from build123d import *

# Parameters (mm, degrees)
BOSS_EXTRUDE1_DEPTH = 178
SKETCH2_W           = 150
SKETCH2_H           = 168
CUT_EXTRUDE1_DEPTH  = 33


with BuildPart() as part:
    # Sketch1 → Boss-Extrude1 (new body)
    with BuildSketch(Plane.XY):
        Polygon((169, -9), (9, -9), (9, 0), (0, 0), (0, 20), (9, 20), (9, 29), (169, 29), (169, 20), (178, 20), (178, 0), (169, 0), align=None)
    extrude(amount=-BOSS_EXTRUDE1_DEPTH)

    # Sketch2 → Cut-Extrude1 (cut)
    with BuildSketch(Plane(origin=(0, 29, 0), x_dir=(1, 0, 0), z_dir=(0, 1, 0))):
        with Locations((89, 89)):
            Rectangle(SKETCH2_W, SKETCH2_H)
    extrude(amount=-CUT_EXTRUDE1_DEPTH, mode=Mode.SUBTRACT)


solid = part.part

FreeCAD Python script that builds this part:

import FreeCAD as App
import Part
import Sketcher

V = App.Vector
Q = App.Units.Quantity


def add_polygon(sketch, points):
    """Adds a closed chain of lines whose ends are joined by coincident constraints."""
    first, n = sketch.GeometryCount, len(points)
    for a, b in zip(points, points[1:] + points[:1]):
        sketch.addGeometry(Part.LineSegment(App.Vector(*a, 0), App.Vector(*b, 0)), False)
    for i in range(n):
        sketch.addConstraint(Sketcher.Constraint("Coincident", first + i, 2, first + (i + 1) % n, 1))

doc = App.newDocument("Part")
body = doc.addObject("PartDesign::Body", "Body")

sketch1 = doc.addObject("Sketcher::SketchObject", "Sketch")
body.addObject(sketch1)
sketch1.AttachmentSupport = (doc.XY_Plane, [""])
sketch1.MapMode = "FlatFace"
add_polygon(sketch1, [(9, -9), (169, -9), (169, 0), (178, 0), (178, 20), (169, 20), (169, 29), (9, 29), (9, 20), (0, 20), (0, 0), (9, 0)])
sketch1.addConstraint([
    Sketcher.Constraint("Horizontal", 0),
    Sketcher.Constraint("Vertical", 1),
    Sketcher.Constraint("Horizontal", 2),
    Sketcher.Constraint("Vertical", 3),
    Sketcher.Constraint("Horizontal", 4),
    Sketcher.Constraint("Vertical", 5),
    Sketcher.Constraint("Horizontal", 6),
    Sketcher.Constraint("Vertical", 7),
    Sketcher.Constraint("Horizontal", 8),
    Sketcher.Constraint("Vertical", 9),
    Sketcher.Constraint("Horizontal", 10),
    Sketcher.Constraint("Vertical", 11),
    Sketcher.Constraint("Coincident", 9, 2, -1, 1),
    Sketcher.Constraint("PointOnObject", 1, 2, -1),
    Sketcher.Constraint("Horizontal", 4, 2, 7, 2),
    Sketcher.Constraint("Vertical", 1, 2, 4, 2),
    Sketcher.Constraint("Vertical", 7, 2, 10, 2),
    Sketcher.Constraint("Equal", 4, 8),
    Sketcher.Constraint("Equal", 10, 1),
    Sketcher.Constraint("Equal", 1, 5),
    Sketcher.Constraint("DistanceX", 0, 1, 0, 2, Q("160 mm")),
    Sketcher.Constraint("DistanceX", 2, 1, 2, 2, Q("9 mm")),
    Sketcher.Constraint("DistanceY", 3, 1, 3, 2, Q("20 mm")),
])
pad1 = doc.addObject("PartDesign::Pad", "Pad")
body.addObject(pad1)
pad1.Profile = sketch1
pad1.Length = 178
pad1.Reversed = True

sketch2 = doc.addObject("Sketcher::SketchObject", "Sketch001")
body.addObject(sketch2)
sketch2.AttachmentSupport = (doc.XZ_Plane, [""])
sketch2.MapMode = "FlatFace"
sketch2.AttachmentOffset = App.Placement(V(0, 0, -29), App.Rotation())
add_polygon(sketch2, [(14, -173), (14, -5), (164, -5), (164, -173)])
sketch2.addConstraint([
    Sketcher.Constraint("Vertical", 0),
    Sketcher.Constraint("Horizontal", 1),
    Sketcher.Constraint("Vertical", 2),
    Sketcher.Constraint("Horizontal", 3),
    Sketcher.Constraint("DistanceX", 1, 1, 1, 2, Q("150 mm")),
    Sketcher.Constraint("DistanceY", 0, 1, 0, 2, Q("168 mm")),
    Sketcher.Constraint("DistanceX", -1, 1, 0, 2, Q("14 mm")),
    Sketcher.Constraint("DistanceY", 0, 2, -1, 1, Q("5 mm")),
])
pocket1 = doc.addObject("PartDesign::Pocket", "Pocket")
body.addObject(pocket1)
pocket1.Profile = sketch2
pocket1.Length = 33
pocket1.Reversed = True

doc.recompute()
